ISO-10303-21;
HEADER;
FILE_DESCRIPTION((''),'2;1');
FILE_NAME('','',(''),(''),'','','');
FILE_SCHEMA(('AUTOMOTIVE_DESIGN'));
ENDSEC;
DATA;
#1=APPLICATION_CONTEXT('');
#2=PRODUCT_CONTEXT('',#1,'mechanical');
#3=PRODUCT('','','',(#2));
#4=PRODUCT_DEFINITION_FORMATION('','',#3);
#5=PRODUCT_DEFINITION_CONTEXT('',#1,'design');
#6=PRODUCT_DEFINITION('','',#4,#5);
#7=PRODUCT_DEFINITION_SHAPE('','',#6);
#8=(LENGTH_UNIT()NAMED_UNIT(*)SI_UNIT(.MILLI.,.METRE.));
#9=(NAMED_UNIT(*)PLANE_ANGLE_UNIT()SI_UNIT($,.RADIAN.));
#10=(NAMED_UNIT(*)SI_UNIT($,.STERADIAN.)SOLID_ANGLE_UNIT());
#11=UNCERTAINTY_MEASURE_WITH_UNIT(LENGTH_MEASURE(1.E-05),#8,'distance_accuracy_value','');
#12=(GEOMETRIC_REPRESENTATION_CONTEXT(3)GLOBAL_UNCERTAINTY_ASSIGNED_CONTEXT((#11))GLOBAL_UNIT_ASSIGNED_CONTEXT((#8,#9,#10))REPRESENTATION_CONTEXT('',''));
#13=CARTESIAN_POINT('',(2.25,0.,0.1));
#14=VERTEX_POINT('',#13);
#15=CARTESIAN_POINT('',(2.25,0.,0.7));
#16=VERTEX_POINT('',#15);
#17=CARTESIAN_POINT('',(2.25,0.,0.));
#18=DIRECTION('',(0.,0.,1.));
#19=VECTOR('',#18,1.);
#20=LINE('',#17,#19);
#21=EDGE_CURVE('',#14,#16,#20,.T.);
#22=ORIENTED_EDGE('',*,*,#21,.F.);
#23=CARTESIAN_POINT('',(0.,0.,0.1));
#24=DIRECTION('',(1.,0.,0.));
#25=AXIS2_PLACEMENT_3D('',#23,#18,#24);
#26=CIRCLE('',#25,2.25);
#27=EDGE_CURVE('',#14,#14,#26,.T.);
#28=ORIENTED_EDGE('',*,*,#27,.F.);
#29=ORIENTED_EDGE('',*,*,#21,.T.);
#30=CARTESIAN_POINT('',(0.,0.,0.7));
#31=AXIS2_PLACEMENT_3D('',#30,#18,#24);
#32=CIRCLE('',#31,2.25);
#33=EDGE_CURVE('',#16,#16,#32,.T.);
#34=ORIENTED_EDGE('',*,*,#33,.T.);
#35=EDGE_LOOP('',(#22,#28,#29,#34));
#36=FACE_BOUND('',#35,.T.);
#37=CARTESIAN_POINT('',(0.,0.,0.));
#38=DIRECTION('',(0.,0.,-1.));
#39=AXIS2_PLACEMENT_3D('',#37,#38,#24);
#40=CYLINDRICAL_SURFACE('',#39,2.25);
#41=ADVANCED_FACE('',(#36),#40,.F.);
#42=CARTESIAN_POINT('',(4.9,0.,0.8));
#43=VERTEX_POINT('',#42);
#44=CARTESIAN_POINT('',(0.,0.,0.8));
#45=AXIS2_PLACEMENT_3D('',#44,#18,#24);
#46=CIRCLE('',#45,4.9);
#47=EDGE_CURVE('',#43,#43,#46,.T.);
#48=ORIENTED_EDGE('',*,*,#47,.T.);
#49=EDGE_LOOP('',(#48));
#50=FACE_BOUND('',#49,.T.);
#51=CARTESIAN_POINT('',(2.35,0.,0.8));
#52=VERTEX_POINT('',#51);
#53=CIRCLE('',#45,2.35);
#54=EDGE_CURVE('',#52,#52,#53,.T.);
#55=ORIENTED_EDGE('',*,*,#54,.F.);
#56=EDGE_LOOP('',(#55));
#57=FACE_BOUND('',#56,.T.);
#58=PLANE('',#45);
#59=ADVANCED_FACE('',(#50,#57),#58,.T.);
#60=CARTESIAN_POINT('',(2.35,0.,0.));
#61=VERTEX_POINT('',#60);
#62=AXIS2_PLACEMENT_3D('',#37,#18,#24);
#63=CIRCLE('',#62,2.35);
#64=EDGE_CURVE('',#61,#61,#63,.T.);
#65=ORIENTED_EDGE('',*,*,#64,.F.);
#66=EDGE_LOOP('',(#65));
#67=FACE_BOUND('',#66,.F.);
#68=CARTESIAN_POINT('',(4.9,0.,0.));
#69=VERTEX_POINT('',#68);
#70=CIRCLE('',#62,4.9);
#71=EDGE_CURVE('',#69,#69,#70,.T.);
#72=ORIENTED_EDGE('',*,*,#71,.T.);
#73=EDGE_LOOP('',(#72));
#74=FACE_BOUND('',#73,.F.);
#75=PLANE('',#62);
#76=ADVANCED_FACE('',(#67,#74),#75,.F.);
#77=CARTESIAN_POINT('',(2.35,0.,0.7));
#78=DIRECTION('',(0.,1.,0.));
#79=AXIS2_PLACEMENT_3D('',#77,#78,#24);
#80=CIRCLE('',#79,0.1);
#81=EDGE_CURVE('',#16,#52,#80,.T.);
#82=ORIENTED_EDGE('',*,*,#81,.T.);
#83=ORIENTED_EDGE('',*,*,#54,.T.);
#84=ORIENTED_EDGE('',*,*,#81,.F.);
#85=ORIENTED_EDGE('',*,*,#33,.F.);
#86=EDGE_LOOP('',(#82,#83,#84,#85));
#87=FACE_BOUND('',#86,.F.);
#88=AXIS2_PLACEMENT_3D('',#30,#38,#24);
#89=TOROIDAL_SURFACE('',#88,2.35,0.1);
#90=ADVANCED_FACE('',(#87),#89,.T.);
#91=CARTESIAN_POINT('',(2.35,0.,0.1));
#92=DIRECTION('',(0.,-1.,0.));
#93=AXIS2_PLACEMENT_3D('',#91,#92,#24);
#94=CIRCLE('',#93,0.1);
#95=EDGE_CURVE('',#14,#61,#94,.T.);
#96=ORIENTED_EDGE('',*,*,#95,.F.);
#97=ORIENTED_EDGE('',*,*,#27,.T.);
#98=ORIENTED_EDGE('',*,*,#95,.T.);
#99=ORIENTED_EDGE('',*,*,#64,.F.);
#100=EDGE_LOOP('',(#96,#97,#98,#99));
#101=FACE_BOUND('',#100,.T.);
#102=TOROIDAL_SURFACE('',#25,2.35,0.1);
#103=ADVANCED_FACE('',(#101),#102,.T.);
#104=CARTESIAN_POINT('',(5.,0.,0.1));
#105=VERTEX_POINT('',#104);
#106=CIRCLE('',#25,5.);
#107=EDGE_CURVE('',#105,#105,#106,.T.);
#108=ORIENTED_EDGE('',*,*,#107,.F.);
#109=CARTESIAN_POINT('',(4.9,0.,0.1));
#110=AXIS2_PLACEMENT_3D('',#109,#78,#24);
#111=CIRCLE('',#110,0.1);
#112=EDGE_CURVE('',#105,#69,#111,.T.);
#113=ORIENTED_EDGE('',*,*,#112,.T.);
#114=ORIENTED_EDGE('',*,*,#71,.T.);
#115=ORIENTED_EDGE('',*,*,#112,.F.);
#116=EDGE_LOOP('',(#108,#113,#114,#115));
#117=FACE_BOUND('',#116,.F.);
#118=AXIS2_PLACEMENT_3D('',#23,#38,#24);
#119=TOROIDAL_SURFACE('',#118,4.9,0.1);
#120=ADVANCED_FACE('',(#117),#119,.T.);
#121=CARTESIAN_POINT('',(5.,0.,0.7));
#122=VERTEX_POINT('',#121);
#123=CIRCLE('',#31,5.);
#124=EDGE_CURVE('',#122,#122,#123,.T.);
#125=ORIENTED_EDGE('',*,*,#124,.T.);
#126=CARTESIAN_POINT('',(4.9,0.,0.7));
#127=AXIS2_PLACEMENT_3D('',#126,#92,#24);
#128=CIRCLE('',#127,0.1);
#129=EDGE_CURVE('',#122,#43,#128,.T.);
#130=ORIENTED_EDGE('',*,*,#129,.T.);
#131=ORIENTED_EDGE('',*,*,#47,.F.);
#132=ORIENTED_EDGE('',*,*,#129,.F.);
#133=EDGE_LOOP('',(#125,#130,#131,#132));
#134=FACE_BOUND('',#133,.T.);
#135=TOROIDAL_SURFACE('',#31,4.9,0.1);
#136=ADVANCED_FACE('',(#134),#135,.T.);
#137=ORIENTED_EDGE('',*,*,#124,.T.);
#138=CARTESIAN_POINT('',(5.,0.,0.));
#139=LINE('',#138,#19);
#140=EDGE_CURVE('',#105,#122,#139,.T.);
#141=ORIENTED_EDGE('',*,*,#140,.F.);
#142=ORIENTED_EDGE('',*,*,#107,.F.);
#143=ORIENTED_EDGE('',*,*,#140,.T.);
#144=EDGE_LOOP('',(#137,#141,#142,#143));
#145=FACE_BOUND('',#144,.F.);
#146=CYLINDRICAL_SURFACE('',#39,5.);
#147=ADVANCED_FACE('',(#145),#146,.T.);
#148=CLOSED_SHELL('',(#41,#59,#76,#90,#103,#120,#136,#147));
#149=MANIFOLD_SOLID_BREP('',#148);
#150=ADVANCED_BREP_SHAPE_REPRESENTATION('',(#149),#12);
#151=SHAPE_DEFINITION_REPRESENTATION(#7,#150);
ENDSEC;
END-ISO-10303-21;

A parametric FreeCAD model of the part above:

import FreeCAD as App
import Part
import Sketcher

V = App.Vector


def edges_at(feature, points):
    """Names of the edges that pass closest to the given points."""
    edges = feature.Shape.Edges
    near = lambda p: min(range(len(edges)), key=lambda i: edges[i].distToShape(Part.Vertex(*p))[0])
    return sorted({f"Edge{near(p) + 1}" for p in points})

doc = App.newDocument("Part")
body = doc.addObject("PartDesign::Body", "Body")

# Sketch on XY plane
sketch1 = body.newObject("Sketcher::SketchObject", "Sketch")
sketch1.AttachmentSupport = (doc.getObject("XY_Plane"), [""])
sketch1.MapMode = "FlatFace"
sketch1.addGeometry([
    Part.Circle(V(0, 0, 0), V(0, 0, 1), 5),
    Part.Circle(V(0, 0, 0), V(0, 0, 1), 2.25),
], False)
sketch1.addConstraint([
    Sketcher.Constraint("Coincident", 0, 3, -1, 1),
    Sketcher.Constraint("Coincident", 1, 3, -1, 1),
    Sketcher.Constraint("Diameter", 0, 10.0),
    Sketcher.Constraint("Diameter", 1, 4.5),
])
pad1 = body.newObject("PartDesign::Pad", "Pad")
pad1.Profile = sketch1
pad1.Length = 0.8
doc.recompute()

fillet = body.newObject("PartDesign::Fillet", "Fillet")
fillet.Base = (pad1, edges_at(pad1, [
    (-5, 0, 0.8),
    (-5, 0, 0),
    (-2.25, 0, 0.8),
    (-2.25, 0, 0),
]))
fillet.Radius = 0.1

doc.recompute()
